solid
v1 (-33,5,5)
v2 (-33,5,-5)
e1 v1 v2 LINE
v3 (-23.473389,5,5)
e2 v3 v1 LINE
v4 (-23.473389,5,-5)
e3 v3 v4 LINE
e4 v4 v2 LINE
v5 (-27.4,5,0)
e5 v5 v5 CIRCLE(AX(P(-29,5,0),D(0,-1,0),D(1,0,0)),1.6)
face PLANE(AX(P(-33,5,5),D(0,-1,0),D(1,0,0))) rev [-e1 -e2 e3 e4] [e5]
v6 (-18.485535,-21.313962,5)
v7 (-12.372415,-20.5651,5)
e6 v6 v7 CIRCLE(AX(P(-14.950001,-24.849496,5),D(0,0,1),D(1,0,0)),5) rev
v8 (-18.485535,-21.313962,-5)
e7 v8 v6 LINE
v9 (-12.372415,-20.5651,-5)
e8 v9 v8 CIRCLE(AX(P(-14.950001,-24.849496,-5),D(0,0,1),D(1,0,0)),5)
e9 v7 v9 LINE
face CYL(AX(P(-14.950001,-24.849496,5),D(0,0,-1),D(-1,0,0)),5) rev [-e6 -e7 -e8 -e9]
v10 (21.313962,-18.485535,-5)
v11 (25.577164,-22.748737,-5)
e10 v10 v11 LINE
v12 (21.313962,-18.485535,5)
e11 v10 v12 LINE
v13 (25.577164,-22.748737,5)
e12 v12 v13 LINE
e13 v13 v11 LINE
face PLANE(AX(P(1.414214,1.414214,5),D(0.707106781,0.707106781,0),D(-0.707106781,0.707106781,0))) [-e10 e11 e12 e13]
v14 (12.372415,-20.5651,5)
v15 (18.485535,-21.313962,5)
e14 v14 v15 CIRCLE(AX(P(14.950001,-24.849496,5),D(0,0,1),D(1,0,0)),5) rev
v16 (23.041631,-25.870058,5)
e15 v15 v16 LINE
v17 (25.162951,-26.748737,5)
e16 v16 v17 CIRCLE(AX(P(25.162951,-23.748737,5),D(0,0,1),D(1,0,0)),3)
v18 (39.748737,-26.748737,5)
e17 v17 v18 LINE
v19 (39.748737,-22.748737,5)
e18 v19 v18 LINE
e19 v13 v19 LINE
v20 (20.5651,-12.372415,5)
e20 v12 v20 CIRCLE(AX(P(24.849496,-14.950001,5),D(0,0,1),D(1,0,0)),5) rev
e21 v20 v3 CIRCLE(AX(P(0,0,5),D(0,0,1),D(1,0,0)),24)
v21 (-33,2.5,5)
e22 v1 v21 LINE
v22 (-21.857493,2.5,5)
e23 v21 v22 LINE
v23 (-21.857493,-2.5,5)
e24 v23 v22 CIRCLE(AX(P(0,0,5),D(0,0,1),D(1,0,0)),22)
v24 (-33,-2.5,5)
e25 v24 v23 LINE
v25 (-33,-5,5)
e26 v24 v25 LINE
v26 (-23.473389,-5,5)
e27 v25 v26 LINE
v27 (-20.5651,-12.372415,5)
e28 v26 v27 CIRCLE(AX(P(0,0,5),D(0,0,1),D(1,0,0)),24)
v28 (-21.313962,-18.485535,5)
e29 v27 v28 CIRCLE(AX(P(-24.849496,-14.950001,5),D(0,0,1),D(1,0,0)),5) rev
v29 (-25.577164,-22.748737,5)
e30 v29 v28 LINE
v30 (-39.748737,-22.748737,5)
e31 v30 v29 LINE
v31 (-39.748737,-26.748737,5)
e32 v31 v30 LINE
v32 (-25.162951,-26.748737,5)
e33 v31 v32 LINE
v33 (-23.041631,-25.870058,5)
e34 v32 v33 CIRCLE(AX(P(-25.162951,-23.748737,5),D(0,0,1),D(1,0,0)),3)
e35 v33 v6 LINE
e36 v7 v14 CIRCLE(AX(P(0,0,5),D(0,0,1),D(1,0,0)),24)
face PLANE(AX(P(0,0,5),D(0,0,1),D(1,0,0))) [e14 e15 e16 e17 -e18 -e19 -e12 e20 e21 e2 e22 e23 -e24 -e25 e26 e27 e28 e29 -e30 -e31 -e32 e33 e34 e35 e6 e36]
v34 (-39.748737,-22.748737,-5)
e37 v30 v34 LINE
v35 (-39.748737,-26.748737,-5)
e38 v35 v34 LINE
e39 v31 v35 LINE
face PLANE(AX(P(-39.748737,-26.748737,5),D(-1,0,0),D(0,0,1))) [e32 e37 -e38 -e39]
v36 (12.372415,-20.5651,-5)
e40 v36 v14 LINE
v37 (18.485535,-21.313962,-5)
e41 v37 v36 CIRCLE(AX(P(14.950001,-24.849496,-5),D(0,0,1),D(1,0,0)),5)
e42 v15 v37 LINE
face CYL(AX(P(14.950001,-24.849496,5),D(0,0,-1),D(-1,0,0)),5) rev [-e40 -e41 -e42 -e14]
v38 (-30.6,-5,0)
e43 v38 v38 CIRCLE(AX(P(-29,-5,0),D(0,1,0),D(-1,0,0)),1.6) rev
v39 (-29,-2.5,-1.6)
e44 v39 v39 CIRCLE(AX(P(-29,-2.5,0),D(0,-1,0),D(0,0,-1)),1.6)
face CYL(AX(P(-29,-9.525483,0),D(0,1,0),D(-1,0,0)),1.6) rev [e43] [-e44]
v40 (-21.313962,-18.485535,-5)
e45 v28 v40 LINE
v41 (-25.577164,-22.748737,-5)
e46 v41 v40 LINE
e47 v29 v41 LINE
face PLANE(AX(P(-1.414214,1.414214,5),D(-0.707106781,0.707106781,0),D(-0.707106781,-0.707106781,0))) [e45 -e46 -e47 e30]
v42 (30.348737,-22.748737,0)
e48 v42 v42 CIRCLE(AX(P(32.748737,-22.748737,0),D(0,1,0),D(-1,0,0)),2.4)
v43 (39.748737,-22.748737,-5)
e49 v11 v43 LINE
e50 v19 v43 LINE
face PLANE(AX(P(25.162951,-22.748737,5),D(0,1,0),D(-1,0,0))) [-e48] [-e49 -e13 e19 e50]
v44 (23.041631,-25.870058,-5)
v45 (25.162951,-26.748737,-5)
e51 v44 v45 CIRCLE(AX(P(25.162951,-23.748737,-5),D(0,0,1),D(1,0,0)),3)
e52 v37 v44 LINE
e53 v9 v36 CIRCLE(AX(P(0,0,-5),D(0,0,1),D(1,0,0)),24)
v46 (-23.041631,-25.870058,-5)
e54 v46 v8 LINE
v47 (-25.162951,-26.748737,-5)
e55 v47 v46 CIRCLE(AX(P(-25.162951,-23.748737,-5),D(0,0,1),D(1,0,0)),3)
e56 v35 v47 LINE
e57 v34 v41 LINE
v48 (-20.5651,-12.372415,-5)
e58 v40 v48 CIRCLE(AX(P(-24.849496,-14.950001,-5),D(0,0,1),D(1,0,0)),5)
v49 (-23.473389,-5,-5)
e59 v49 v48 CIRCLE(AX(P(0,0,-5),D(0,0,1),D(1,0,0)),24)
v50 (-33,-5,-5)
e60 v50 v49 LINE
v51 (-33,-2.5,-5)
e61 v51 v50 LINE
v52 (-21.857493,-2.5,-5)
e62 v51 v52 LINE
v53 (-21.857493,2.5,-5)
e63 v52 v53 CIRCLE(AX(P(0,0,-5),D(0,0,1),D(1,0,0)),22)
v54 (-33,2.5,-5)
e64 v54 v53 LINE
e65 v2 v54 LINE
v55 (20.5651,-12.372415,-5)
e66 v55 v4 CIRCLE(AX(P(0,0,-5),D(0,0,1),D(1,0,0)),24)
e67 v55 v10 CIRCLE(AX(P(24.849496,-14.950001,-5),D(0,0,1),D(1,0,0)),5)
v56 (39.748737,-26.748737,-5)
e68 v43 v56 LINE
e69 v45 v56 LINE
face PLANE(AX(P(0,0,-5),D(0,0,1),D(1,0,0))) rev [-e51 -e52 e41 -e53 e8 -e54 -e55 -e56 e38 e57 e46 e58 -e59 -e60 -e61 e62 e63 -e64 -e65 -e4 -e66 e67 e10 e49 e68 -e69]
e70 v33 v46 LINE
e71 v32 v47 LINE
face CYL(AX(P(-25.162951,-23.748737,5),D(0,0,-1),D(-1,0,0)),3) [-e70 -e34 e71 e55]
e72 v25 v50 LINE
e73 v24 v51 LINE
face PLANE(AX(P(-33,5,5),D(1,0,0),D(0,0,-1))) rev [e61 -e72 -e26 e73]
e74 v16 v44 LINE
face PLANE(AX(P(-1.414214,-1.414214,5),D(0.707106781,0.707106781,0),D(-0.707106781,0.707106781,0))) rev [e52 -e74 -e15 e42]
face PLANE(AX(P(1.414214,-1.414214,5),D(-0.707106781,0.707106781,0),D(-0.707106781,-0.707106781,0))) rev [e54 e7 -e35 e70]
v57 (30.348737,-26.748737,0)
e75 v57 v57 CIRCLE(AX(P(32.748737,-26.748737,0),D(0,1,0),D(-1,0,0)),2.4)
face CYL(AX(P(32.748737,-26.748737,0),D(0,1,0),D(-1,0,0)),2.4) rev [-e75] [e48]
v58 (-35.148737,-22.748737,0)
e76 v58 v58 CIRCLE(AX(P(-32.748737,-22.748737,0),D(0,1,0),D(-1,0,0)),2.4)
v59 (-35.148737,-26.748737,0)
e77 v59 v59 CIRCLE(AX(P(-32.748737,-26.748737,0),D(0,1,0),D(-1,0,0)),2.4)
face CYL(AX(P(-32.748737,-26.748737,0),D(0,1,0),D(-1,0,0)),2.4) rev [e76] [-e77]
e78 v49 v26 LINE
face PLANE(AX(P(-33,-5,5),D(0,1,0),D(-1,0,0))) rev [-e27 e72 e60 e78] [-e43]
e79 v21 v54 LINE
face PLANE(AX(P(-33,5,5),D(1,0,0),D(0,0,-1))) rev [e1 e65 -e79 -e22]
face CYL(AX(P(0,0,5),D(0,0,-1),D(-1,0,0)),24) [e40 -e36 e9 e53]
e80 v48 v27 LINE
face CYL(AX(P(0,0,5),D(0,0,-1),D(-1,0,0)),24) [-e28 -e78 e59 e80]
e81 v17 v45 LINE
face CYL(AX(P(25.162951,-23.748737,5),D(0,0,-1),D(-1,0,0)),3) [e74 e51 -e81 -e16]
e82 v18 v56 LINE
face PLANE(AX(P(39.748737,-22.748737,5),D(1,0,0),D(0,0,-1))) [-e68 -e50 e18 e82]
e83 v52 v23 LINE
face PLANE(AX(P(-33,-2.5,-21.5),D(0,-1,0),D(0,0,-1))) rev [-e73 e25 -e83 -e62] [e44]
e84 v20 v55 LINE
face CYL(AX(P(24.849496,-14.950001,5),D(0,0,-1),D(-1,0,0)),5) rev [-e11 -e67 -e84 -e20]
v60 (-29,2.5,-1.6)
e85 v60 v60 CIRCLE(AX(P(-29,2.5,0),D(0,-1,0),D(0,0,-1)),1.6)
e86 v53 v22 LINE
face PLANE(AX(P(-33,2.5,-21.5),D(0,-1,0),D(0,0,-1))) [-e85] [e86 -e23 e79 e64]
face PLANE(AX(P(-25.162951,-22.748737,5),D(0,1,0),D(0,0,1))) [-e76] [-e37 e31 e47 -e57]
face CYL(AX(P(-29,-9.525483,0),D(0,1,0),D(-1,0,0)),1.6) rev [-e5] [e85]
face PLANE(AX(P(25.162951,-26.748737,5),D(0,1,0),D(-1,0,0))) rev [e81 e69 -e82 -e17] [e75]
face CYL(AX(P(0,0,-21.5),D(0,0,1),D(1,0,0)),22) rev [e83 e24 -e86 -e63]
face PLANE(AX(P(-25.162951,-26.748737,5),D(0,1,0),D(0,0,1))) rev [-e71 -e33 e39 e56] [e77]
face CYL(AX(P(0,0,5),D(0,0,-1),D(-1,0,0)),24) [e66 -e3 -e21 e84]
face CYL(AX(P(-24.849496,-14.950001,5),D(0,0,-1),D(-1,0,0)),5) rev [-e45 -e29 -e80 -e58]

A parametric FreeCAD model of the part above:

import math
import FreeCAD as App
import Part
import Sketcher

V = App.Vector
Q = App.Units.Quantity


def edges_at(feature, points):
    """Names of the edges that pass closest to the given points."""
    edges = feature.Shape.Edges
    near = lambda p: min(range(len(edges)), key=lambda i: edges[i].distToShape(Part.Vertex(*p))[0])
    return sorted({f"Edge{near(p) + 1}" for p in points})

doc = App.newDocument("Part")
body = doc.addObject("PartDesign::Body", "Body")

# Sketch on XY plane
sketch1 = body.newObject("Sketcher::SketchObject", "Sketch")
sketch1.AttachmentSupport = (doc.getObject("XY_Plane"), [""])
sketch1.MapMode = "FlatFace"
sketch1.addGeometry(Part.Circle(V(0, 0, 0), V(0, 0, 1), 24), False)
sketch1.addConstraint(Sketcher.Constraint("Coincident", 0, 3, -1, 1))
sketch1.addConstraint(Sketcher.Constraint("Diameter", 0, Q("48 mm")))
pad1 = body.newObject("PartDesign::Pad", "Pad")
pad1.Profile = sketch1
pad1.Length = 10
pad1.Midplane = True

# Sketch on XY plane
sketch2 = body.newObject("Sketcher::SketchObject", "Sketch001")
sketch2.AttachmentSupport = (doc.getObject("XY_Plane"), [""])
sketch2.MapMode = "FlatFace"
sketch2.addGeometry(Part.LineSegment(V(-39.7, -26.7, 0), V(-25.2, -26.7, 0)), False)
sketch2.addGeometry(Part.ArcOfCircle(Part.Circle(V(-25.2, -23.7, 0), V(0, 0, 1), 3), math.radians(-90), math.radians(-45)), False)
sketch2.addGeometry(Part.LineSegment(V(-23, -25.9, 0), V(0, -2.8, 0)), False)
sketch2.addGeometry(Part.LineSegment(V(0, -2.8, 0), V(23, -25.9, 0)), False)
sketch2.addGeometry(Part.ArcOfCircle(Part.Circle(V(25.2, -23.7, 0), V(0, 0, 1), 3), math.radians(-135), math.radians(-90)), False)
sketch2.addGeometry(Part.LineSegment(V(25.2, -26.7, 0), V(39.7, -26.7, 0)), False)
sketch2.addGeometry(Part.LineSegment(V(39.7, -26.7, 0), V(39.7, -22.7, 0)), False)
sketch2.addGeometry(Part.LineSegment(V(39.7, -22.7, 0), V(25.6, -22.7, 0)), False)
sketch2.addGeometry(Part.LineSegment(V(25.6, -22.7, 0), V(0, 2.8, 0)), False)
sketch2.addGeometry(Part.LineSegment(V(0, 2.8, 0), V(-25.6, -22.7, 0)), False)
sketch2.addGeometry(Part.LineSegment(V(-25.6, -22.7, 0), V(-39.7, -22.7, 0)), False)
sketch2.addGeometry(Part.LineSegment(V(-39.7, -22.7, 0), V(-39.7, -26.7, 0)), False)
sketch2.addConstraint(Sketcher.Constraint("Tangent", 0, 2, 1, 1))
sketch2.addConstraint(Sketcher.Constraint("Tangent", 1, 2, 2, 1))
sketch2.addConstraint(Sketcher.Constraint("Coincident", 2, 2, 3, 1))
sketch2.addConstraint(Sketcher.Constraint("Tangent", 3, 2, 4, 1))
sketch2.addConstraint(Sketcher.Constraint("Tangent", 4, 2, 5, 1))
sketch2.addConstraint(Sketcher.Constraint("Coincident", 5, 2, 6, 1))
sketch2.addConstraint(Sketcher.Constraint("Coincident", 6, 2, 7, 1))
sketch2.addConstraint(Sketcher.Constraint("Coincident", 7, 2, 8, 1))
sketch2.addConstraint(Sketcher.Constraint("Coincident", 8, 2, 9, 1))
sketch2.addConstraint(Sketcher.Constraint("Coincident", 9, 2, 10, 1))
sketch2.addConstraint(Sketcher.Constraint("Coincident", 10, 2, 11, 1))
sketch2.addConstraint(Sketcher.Constraint("Coincident", 11, 2, 0, 1))
sketch2.addConstraint(Sketcher.Constraint("Horizontal", 0))
sketch2.addConstraint(Sketcher.Constraint("Horizontal", 5))
sketch2.addConstraint(Sketcher.Constraint("Vertical", 6))
sketch2.addConstraint(Sketcher.Constraint("Horizontal", 7))
sketch2.addConstraint(Sketcher.Constraint("Horizontal", 10))
sketch2.addConstraint(Sketcher.Constraint("Vertical", 11))
sketch2.addConstraint(Sketcher.Constraint("Equal", 1, 4))
sketch2.addConstraint(Sketcher.Constraint("Symmetric", 2, 2, 8, 2, -1, 1))
sketch2.addConstraint(Sketcher.Constraint("Symmetric", 1, 3, 4, 3, -2))
sketch2.addConstraint(Sketcher.Constraint("Symmetric", 7, 2, 9, 2, -2))
sketch2.addConstraint(Sketcher.Constraint("PointOnObject", 2, 2, -2))
sketch2.addConstraint(Sketcher.Constraint("Perpendicular", 2, 3))
sketch2.addConstraint(Sketcher.Constraint("Parallel", 3, 8))
sketch2.addConstraint(Sketcher.Constraint("Equal", 0, 5))
sketch2.addConstraint(Sketcher.Constraint("Radius", 1, Q("3 mm")))
sketch2.addConstraint(Sketcher.Constraint("DistanceY", 6, 1, 6, 2, Q("4 mm")))
sketch2.addConstraint(Sketcher.Constraint("DistanceX", 1, 3, 4, 3, Q("50.325902 mm")))
sketch2.addConstraint(Sketcher.Constraint("DistanceX", 0, 1, 0, 2, Q("14.585786 mm")))
sketch2.addConstraint(Sketcher.Constraint("DistanceX", 7, 2, 7, 1, Q("14.171573 mm")))
pad2 = body.newObject("PartDesign::Pad", "Pad001")
pad2.Profile = sketch2
pad2.Length = 10
pad2.Midplane = True

# Sketch on XY plane
sketch3 = body.newObject("Sketcher::SketchObject", "Sketch002")
sketch3.AttachmentSupport = (doc.getObject("XY_Plane"), [""])
sketch3.MapMode = "FlatFace"
sketch3.addGeometry(Part.LineSegment(V(-33, 5, 0), V(-33, -5, 0)), False)
sketch3.addGeometry(Part.LineSegment(V(-33, -5, 0), V(0, -5, 0)), False)
sketch3.addGeometry(Part.LineSegment(V(0, -5, 0), V(0, 5, 0)), False)
sketch3.addGeometry(Part.LineSegment(V(0, 5, 0), V(-33, 5, 0)), False)
sketch3.addConstraint(Sketcher.Constraint("Coincident", 0, 2, 1, 1))
sketch3.addConstraint(Sketcher.Constraint("Coincident", 1, 2, 2, 1))
sketch3.addConstraint(Sketcher.Constraint("Coincident", 2, 2, 3, 1))
sketch3.addConstraint(Sketcher.Constraint("Coincident", 3, 2, 0, 1))
sketch3.addConstraint(Sketcher.Constraint("Vertical", 0))
sketch3.addConstraint(Sketcher.Constraint("Horizontal", 1))
sketch3.addConstraint(Sketcher.Constraint("Vertical", 2))
sketch3.addConstraint(Sketcher.Constraint("Horizontal", 3))
sketch3.addConstraint(Sketcher.Constraint("Symmetric", 1, 2, 2, 2, -1, 1))
sketch3.addConstraint(Sketcher.Constraint("DistanceX", 1, 1, 1, 2, Q("33 mm")))
sketch3.addConstraint(Sketcher.Constraint("DistanceY", 0, 2, 0, 1, Q("10 mm")))
pad3 = body.newObject("PartDesign::Pad", "Pad002")
pad3.Profile = sketch3
pad3.Length = 10
pad3.Midplane = True

# Sketch on XY plane
sketch4 = body.newObject("Sketcher::SketchObject", "Sketch003")
sketch4.AttachmentSupport = (doc.getObject("XY_Plane"), [""])
sketch4.MapMode = "FlatFace"
sketch4.AttachmentOffset = App.Placement(V(0, 0, 5), App.Rotation())
sketch4.addGeometry(Part.ArcOfCircle(Part.Circle(V(0, 0, 0), V(0, 0, 1), 22), math.radians(-173), math.radians(173)), False)
sketch4.addGeometry(Part.LineSegment(V(-22, 2, 0), V(-33, 2, 0)), False)
sketch4.addGeometry(Part.LineSegment(V(-33, 2, 0), V(-33, -2, 0)), False)
sketch4.addGeometry(Part.LineSegment(V(-33, -2, 0), V(-22, -2, 0)), False)
sketch4.addConstraint(Sketcher.Constraint("Coincident", 0, 2, 1, 1))
sketch4.addConstraint(Sketcher.Constraint("Coincident", 1, 2, 2, 1))
sketch4.addConstraint(Sketcher.Constraint("Coincident", 2, 2, 3, 1))
sketch4.addConstraint(Sketcher.Constraint("Coincident", 3, 2, 0, 1))
sketch4.addConstraint(Sketcher.Constraint("Horizontal", 1))
sketch4.addConstraint(Sketcher.Constraint("Vertical", 2))
sketch4.addConstraint(Sketcher.Constraint("Horizontal", 3))
sketch4.addConstraint(Sketcher.Constraint("Coincident", 0, 3, -1, 1))
sketch4.addConstraint(Sketcher.Constraint("Vertical", 0, 2, 3, 2))
sketch4.addConstraint(Sketcher.Constraint("Radius", 0, Q("22 mm")))
sketch4.addConstraint(Sketcher.Constraint("DistanceY", 2, 2, 2, 1, Q("5 mm")))
sketch4.addConstraint(Sketcher.Constraint("DistanceX", 1, 2, -1, 1, Q("33 mm")))
pocket1 = body.newObject("PartDesign::Pocket", "Pocket")
pocket1.Profile = sketch4
pocket1.Length = 26.5

# Sketch on XZ plane
sketch5 = body.newObject("Sketcher::SketchObject", "Sketch004")
sketch5.AttachmentSupport = (doc.getObject("XZ_Plane"), [""])
sketch5.MapMode = "FlatFace"
sketch5.AttachmentOffset = App.Placement(V(0, 0, -5), App.Rotation())
sketch5.addGeometry(Part.Circle(V(-29, 0, 0), V(0, 0, 1), 1.6), False)
sketch5.addConstraint(Sketcher.Constraint("PointOnObject", 0, 3, -1))
sketch5.addConstraint(Sketcher.Constraint("Diameter", 0, Q("3.2 mm")))
sketch5.addConstraint(Sketcher.Constraint("DistanceX", 0, 3, -1, 1, Q("29 mm")))
pocket2 = body.newObject("PartDesign::Pocket", "Pocket001")
pocket2.Profile = sketch5
pocket2.Type = "TwoLengths"
pocket2.Length = 20
pocket2.Length2 = 10

# Sketch on XZ plane
sketch6 = body.newObject("Sketcher::SketchObject", "Sketch005")
sketch6.AttachmentSupport = (doc.getObject("XZ_Plane"), [""])
sketch6.MapMode = "FlatFace"
sketch6.AttachmentOffset = App.Placement(V(0, 0, 22.748737), App.Rotation())
sketch6.addGeometry(Part.Circle(V(-32.7, 0, 0), V(0, 0, 1), 2.4), False)
sketch6.addGeometry(Part.Circle(V(32.7, 0, 0), V(0, 0, 1), 2.4), False)
sketch6.addConstraint(Sketcher.Constraint("Equal", 0, 1))
sketch6.addConstraint(Sketcher.Constraint("Symmetric", 0, 3, 1, 3, -1, 1))
sketch6.addConstraint(Sketcher.Constraint("PointOnObject", 0, 3, -1))
sketch6.addConstraint(Sketcher.Constraint("Diameter", 0, Q("4.8 mm")))
sketch6.addConstraint(Sketcher.Constraint("DistanceX", 0, 3, -1, 1, Q("32.748737 mm")))
pocket3 = body.newObject("PartDesign::Pocket", "Pocket002")
pocket3.Profile = sketch6
pocket3.Type = "ThroughAll"
pocket3.Reversed = True
doc.recompute()

fillet = body.newObject("PartDesign::Fillet", "Fillet")
fillet.Base = (pocket3, edges_at(pocket3, [
    (-15.497, -18.326, 0),
    (15.497, -18.326, 0),
    (18.326, -15.497, 0),
    (-18.326, -15.497, 0),
]))
fillet.Radius = 5

doc.recompute()
